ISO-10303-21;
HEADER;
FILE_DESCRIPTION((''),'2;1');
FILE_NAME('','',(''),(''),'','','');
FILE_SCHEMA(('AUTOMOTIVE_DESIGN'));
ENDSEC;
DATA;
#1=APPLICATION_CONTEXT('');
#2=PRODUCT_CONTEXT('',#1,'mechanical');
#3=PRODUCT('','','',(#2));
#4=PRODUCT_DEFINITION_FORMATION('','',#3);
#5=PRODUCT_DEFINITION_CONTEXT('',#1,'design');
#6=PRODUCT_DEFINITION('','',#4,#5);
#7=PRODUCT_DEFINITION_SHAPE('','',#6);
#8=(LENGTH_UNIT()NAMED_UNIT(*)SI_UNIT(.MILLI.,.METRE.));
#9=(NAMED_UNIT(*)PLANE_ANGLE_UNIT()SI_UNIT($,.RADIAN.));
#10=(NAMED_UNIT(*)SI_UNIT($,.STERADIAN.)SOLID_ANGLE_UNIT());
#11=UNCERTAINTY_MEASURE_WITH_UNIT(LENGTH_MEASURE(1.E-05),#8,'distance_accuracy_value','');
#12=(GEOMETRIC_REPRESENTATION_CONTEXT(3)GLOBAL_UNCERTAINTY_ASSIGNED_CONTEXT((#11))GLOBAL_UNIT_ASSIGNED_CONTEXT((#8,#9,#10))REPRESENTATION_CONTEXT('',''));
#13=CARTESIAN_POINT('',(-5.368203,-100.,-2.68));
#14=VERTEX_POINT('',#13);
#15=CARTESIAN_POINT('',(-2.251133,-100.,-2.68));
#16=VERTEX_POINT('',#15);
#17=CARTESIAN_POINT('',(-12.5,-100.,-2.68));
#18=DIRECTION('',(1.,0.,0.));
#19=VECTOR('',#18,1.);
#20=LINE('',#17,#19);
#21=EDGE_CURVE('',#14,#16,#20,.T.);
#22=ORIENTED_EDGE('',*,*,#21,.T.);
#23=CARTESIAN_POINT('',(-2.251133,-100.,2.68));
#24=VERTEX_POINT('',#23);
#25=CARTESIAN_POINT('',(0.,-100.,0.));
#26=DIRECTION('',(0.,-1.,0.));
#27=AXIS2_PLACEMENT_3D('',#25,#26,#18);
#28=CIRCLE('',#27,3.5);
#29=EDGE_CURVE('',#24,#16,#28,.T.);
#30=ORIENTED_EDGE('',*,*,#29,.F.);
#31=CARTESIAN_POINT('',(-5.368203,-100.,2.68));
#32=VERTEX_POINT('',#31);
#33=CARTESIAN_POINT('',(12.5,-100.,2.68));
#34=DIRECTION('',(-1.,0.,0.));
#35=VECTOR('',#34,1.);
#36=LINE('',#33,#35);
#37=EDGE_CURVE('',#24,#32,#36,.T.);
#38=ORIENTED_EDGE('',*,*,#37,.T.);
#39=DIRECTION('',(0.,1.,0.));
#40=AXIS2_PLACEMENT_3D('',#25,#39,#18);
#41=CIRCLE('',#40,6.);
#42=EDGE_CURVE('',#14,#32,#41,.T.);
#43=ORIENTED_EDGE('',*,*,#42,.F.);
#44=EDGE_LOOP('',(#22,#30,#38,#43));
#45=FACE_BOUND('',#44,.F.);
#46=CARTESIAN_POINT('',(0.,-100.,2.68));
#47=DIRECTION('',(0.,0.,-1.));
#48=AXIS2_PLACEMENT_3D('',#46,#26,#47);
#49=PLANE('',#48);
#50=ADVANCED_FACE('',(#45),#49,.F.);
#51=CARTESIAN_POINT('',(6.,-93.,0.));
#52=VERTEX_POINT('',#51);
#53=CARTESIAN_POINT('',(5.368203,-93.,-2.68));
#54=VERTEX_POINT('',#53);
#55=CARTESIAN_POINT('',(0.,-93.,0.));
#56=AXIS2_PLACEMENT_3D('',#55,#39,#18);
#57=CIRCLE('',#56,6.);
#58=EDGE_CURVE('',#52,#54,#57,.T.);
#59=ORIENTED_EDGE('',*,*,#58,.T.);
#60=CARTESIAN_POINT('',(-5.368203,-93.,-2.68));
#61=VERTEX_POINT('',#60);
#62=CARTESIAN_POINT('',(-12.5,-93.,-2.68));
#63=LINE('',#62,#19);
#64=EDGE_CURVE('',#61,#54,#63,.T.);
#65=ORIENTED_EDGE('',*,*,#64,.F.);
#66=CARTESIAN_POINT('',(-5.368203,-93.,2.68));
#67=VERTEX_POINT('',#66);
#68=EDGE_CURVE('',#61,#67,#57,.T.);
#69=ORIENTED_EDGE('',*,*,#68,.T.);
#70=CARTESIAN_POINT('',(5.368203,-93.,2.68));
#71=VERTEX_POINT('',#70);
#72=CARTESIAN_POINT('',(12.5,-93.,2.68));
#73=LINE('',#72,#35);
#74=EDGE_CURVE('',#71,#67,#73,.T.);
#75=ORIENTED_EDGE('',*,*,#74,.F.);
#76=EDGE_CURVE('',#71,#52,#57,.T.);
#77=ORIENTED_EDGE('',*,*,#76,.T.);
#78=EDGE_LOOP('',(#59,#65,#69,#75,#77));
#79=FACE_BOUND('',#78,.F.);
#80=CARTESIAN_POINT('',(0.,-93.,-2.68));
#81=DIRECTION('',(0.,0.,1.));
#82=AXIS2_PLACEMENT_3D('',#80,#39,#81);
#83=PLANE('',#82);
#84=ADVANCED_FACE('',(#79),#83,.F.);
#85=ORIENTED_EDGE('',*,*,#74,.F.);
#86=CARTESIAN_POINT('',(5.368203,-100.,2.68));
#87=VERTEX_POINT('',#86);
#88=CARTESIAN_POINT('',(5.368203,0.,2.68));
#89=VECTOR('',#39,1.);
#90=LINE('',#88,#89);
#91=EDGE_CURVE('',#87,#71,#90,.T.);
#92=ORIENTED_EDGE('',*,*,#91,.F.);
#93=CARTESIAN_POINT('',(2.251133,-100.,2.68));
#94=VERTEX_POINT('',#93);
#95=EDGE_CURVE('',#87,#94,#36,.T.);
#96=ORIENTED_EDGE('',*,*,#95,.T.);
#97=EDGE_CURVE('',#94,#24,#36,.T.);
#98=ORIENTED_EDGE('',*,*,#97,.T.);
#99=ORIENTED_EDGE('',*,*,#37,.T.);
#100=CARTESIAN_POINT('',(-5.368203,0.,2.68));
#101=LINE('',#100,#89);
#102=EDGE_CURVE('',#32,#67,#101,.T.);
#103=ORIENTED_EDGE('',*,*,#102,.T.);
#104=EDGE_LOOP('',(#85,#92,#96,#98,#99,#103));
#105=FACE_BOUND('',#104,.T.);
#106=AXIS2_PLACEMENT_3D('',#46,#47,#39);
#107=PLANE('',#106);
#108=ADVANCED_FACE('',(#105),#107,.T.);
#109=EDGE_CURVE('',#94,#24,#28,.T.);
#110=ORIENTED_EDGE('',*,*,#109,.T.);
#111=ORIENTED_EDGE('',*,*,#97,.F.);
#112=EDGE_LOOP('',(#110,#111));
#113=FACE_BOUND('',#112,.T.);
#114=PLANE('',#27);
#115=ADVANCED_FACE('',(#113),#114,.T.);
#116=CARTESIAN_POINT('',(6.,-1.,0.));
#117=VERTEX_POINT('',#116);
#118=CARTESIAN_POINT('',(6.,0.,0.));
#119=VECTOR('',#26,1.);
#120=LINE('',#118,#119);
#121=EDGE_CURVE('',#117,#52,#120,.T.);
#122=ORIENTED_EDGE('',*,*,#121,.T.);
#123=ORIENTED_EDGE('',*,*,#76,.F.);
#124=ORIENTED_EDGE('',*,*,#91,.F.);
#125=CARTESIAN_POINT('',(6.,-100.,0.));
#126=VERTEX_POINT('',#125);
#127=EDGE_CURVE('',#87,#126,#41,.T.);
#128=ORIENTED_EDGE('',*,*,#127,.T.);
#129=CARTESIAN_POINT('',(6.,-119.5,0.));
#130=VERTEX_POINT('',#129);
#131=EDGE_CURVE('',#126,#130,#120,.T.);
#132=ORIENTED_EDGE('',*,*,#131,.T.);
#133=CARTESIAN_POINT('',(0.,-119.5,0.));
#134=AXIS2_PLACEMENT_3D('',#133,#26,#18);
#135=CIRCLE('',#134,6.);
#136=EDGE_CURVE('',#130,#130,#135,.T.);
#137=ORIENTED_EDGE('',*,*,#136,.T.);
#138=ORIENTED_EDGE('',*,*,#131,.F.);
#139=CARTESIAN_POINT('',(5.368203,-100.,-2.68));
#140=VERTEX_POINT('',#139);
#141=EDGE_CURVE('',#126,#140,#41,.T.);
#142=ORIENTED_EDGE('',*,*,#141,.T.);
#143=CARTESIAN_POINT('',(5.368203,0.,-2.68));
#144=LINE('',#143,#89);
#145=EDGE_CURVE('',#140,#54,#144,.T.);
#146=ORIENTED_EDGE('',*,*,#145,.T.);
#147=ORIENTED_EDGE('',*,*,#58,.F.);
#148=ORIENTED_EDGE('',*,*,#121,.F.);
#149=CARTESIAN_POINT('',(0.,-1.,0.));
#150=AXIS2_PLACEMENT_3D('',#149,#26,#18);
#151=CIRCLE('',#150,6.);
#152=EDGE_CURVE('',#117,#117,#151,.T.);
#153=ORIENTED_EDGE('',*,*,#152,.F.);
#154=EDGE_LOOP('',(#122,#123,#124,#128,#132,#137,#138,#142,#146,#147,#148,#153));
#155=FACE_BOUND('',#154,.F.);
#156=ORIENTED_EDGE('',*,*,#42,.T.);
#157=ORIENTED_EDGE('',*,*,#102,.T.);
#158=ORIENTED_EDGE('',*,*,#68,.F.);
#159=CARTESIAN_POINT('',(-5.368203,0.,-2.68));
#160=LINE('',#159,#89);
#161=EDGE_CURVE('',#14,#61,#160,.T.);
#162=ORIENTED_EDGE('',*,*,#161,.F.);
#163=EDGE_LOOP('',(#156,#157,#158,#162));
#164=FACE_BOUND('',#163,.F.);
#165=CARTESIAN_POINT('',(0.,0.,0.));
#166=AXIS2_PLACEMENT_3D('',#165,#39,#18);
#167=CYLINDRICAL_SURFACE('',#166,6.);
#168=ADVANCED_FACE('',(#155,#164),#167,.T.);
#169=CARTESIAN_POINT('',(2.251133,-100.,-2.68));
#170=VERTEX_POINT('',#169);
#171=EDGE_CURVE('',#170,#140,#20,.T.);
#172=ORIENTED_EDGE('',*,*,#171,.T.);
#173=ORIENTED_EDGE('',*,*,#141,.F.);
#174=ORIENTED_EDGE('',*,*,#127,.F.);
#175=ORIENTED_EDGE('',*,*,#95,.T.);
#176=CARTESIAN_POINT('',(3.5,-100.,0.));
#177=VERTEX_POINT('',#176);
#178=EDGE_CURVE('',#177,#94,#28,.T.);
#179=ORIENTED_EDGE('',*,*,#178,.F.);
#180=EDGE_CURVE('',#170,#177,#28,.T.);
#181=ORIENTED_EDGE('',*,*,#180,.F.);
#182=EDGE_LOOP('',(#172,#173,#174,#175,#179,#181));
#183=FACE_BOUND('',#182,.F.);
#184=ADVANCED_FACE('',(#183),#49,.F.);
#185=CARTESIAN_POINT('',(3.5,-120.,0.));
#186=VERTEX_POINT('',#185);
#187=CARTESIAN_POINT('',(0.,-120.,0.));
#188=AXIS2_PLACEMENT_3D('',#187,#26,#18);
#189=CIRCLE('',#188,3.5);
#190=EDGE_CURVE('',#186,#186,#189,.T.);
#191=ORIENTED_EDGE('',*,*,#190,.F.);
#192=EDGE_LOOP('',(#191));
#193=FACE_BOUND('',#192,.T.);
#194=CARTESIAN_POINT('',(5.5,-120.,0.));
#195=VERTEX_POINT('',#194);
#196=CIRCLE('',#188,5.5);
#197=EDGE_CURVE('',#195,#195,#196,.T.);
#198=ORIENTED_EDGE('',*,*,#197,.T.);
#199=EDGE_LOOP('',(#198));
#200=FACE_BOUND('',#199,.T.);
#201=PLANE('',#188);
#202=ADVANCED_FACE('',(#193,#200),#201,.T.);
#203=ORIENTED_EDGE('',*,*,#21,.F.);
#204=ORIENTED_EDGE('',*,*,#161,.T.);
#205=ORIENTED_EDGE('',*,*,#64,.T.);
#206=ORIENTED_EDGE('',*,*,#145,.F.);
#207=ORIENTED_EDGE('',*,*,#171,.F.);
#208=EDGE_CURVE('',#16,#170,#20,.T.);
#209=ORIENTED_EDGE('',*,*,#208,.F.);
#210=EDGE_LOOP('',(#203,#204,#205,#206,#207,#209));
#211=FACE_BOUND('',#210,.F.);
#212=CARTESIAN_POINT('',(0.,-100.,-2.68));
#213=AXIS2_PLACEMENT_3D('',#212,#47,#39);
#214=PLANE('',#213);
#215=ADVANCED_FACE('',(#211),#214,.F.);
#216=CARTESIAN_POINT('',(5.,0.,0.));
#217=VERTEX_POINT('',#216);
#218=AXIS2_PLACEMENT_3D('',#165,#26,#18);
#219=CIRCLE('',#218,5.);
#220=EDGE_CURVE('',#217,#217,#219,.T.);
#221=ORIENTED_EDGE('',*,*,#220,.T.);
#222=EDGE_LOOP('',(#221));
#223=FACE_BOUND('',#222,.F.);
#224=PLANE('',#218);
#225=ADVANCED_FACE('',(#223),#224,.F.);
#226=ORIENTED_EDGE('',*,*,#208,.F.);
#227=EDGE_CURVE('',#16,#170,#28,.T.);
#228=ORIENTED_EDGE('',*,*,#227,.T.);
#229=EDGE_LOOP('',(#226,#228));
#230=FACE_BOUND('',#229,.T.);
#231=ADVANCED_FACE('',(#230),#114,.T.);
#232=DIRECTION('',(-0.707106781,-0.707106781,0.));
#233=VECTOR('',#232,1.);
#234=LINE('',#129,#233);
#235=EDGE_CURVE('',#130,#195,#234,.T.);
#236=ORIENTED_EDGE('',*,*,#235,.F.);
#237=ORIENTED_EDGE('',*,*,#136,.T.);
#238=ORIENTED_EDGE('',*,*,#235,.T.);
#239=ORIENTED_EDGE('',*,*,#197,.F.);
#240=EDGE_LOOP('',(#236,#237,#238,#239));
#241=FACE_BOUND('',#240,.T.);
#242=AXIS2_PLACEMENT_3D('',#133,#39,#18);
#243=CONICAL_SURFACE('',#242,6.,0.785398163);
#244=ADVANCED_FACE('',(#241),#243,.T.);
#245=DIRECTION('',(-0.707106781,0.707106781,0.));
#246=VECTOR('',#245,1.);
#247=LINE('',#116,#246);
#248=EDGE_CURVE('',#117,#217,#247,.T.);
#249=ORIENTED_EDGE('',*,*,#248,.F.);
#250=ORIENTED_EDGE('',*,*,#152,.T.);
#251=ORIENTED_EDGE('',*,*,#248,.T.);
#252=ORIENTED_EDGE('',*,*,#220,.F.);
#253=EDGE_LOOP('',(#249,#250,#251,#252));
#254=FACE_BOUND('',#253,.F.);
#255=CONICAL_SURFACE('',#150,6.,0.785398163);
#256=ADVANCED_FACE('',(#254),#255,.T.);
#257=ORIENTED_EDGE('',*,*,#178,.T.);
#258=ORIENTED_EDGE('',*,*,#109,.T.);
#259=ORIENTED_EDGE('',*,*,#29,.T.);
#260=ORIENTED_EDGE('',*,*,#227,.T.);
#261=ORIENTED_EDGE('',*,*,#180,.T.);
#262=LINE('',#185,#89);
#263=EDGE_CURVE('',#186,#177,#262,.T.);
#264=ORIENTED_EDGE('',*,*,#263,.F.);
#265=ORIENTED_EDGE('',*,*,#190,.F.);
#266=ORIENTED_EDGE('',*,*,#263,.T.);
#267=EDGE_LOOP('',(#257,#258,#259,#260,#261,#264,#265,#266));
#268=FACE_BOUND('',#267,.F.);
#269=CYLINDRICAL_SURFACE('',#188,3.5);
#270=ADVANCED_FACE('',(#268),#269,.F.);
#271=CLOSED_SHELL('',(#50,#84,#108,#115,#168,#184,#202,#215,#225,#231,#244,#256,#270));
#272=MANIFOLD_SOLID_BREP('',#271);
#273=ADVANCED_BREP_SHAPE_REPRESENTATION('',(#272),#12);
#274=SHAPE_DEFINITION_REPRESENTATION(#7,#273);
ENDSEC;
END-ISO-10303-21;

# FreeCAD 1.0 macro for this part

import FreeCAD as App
import Part
import Sketcher
from FreeCAD import Vector
Q = App.Units.Quantity


def edges_at(feature, points):
    """Names of the edges that pass closest to the given points."""
    edges = feature.Shape.Edges
    near = lambda p: min(range(len(edges)), key=lambda i: edges[i].distToShape(Part.Vertex(*p))[0])
    return sorted({f"Edge{near(p) + 1}" for p in points})

doc = App.newDocument("Part")
params = doc.addObject("Spreadsheet::Sheet", "Params")
for row, (alias, value) in enumerate([
    ("sketch1_diameter", "12 mm"),
    ("pad1_length", "120 mm"),
    ("sketch2_diameter", "7 mm"),
    ("pocket1_length", "20 mm"),
    ("chamfer_size", "1 mm"),
    ("chamfer2_size", "0.5 mm"),
    ("sketch3_width", "7 mm"),
    ("sketch3_height", "5.36 mm"),
    ("pocket2_length", "25 mm"),
], start=1):
    params.set(f"A{row}", alias)
    params.set(f"B{row}", "=" + value)
    params.setAlias(f"B{row}", alias)

body = doc.addObject("PartDesign::Body", "Body")

# Sketch on XZ plane
sketch1 = body.newObject("Sketcher::SketchObject", "Sketch")
sketch1.AttachmentSupport = (doc.getObject("XZ_Plane"), [""])
sketch1.MapMode = "FlatFace"
sketch1.addGeometry(Part.Circle(Vector(0, 0, 0), Vector(0, 0, 1), 6), False)
sketch1.addConstraint([
    Sketcher.Constraint("Coincident", 0, 3, -1, 1),
    Sketcher.Constraint("Diameter", 0, Q("12 mm")),
])
sketch1.setExpression("Constraints[1]", "Params.sketch1_diameter")
pad1 = body.newObject("PartDesign::Pad", "Pad")
pad1.Profile = sketch1
pad1.setExpression("Length", "Params.pad1_length")

# Sketch on XZ plane
sketch2 = body.newObject("Sketcher::SketchObject", "Sketch001")
sketch2.AttachmentSupport = (doc.getObject("XZ_Plane"), [""])
sketch2.MapMode = "FlatFace"
sketch2.AttachmentOffset = App.Placement(Vector(0, 0, 120), App.Rotation())
sketch2.addGeometry(Part.Circle(Vector(0, 0, 0), Vector(0, 0, 1), 3.5), False)
sketch2.addConstraint([
    Sketcher.Constraint("Coincident", 0, 3, -1, 1),
    Sketcher.Constraint("Diameter", 0, Q("7 mm")),
])
sketch2.setExpression("Constraints[1]", "Params.sketch2_diameter")
pocket1 = body.newObject("PartDesign::Pocket", "Pocket")
pocket1.Profile = sketch2
pocket1.setExpression("Length", "Params.pocket1_length")
doc.recompute()

chamfer = body.newObject("PartDesign::Chamfer", "Chamfer")
chamfer.Base = (pocket1, edges_at(pocket1, [(-6, 0, 0)]))
chamfer.setExpression("Size", "Params.chamfer_size")
doc.recompute()

chamfer2 = body.newObject("PartDesign::Chamfer", "Chamfer001")
chamfer2.Base = (chamfer, edges_at(chamfer, [(-6, -120, 0)]))
chamfer2.setExpression("Size", "Params.chamfer2_size")

# Sketch on YZ plane
sketch3 = body.newObject("Sketcher::SketchObject", "Sketch002")
sketch3.AttachmentSupport = (doc.getObject("YZ_Plane"), [""])
sketch3.MapMode = "FlatFace"
sketch3.addGeometry([
    Part.LineSegment(Vector(-100, 2.68, 0), Vector(-100, -2.68, 0)),
    Part.LineSegment(Vector(-100, -2.68, 0), Vector(-93, -2.68, 0)),
    Part.LineSegment(Vector(-93, -2.68, 0), Vector(-93, 2.68, 0)),
    Part.LineSegment(Vector(-93, 2.68, 0), Vector(-100, 2.68, 0)),
], False)
sketch3.addConstraint([
    Sketcher.Constraint("Coincident", 0, 2, 1, 1),
    Sketcher.Constraint("Coincident", 1, 2, 2, 1),
    Sketcher.Constraint("Coincident", 2, 2, 3, 1),
    Sketcher.Constraint("Coincident", 3, 2, 0, 1),
    Sketcher.Constraint("Vertical", 0),
    Sketcher.Constraint("Horizontal", 1),
    Sketcher.Constraint("Vertical", 2),
    Sketcher.Constraint("Horizontal", 3),
    Sketcher.Constraint("DistanceX", 1, 1, 1, 2, Q("7 mm")),
    Sketcher.Constraint("DistanceX", 0, 2, -1, 1, Q("100 mm")),
    Sketcher.Constraint("DistanceY", 0, 2, 0, 1, Q("5.36 mm")),
    Sketcher.Constraint("DistanceY", 0, 2, -1, 1, Q("2.68 mm")),
])
sketch3.setExpression("Constraints[8]", "Params.sketch3_width")
sketch3.setExpression("Constraints[10]", "Params.sketch3_height")
pocket2 = body.newObject("PartDesign::Pocket", "Pocket001")
pocket2.Profile = sketch3
pocket2.setExpression("Length", "Params.pocket2_length")
pocket2.Midplane = True

doc.recompute()
